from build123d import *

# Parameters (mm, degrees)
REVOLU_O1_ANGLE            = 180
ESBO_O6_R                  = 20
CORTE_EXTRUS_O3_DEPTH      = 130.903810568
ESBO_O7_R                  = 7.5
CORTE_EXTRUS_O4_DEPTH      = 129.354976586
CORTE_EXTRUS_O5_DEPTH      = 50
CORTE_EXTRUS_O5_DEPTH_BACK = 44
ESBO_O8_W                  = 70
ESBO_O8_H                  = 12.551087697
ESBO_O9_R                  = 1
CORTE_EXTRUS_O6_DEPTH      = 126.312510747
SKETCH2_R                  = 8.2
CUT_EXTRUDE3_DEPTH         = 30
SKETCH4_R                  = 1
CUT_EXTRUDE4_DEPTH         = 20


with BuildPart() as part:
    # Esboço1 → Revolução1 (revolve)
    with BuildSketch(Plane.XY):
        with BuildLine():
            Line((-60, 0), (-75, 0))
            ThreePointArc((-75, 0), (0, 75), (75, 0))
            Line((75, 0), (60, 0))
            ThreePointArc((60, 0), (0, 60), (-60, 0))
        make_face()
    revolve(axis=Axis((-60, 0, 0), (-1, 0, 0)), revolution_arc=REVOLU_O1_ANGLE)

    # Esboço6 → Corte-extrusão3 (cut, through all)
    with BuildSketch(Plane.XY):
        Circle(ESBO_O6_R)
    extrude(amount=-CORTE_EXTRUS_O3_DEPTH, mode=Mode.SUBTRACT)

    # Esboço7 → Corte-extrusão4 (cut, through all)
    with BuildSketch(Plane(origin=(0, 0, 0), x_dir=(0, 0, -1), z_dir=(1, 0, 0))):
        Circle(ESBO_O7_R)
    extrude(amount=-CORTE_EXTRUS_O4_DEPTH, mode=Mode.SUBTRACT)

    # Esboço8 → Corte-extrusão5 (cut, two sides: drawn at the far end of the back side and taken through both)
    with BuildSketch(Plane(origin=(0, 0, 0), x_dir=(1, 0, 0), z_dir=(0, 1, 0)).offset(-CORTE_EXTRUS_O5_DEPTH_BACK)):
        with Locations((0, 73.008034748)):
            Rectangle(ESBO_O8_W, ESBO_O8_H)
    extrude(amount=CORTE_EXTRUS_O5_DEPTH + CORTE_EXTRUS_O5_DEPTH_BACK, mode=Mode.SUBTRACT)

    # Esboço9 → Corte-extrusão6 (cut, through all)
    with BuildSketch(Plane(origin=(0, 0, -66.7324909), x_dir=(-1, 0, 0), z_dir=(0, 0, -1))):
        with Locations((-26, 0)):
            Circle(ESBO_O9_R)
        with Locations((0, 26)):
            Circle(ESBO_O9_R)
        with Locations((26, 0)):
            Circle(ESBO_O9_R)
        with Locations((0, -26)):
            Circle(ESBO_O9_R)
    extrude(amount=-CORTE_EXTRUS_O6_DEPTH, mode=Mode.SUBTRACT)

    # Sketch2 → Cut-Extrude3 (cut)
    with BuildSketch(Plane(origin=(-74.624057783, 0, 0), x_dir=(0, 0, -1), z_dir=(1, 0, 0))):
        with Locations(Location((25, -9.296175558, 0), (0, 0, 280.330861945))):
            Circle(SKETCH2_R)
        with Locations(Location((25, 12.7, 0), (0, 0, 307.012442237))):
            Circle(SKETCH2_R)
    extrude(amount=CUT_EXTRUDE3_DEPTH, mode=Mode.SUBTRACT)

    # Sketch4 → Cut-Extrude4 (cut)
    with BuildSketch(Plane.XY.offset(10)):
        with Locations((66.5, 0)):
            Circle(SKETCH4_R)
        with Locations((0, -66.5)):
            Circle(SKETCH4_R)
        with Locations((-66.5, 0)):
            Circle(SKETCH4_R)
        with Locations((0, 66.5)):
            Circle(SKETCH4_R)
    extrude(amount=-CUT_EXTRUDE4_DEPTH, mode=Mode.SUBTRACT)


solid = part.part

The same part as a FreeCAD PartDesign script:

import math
import FreeCAD as App
import Part
import Sketcher
from FreeCAD import Vector


def add_polygon(sketch, points):
    """Adds a closed chain of lines whose ends are joined by coincident constraints."""
    first, n = sketch.GeometryCount, len(points)
    for a, b in zip(points, points[1:] + points[:1]):
        sketch.addGeometry(Part.LineSegment(App.Vector(*a, 0), App.Vector(*b, 0)), False)
    for i in range(n):
        sketch.addConstraint(Sketcher.Constraint("Coincident", first + i, 2, first + (i + 1) % n, 1))

doc = App.newDocument("Part")
body = doc.addObject("PartDesign::Body", "Body")

sketch1 = doc.addObject("Sketcher::SketchObject", "Sketch")
body.addObject(sketch1)
sketch1.AttachmentSupport = (doc.XY_Plane, [""])
sketch1.MapMode = "FlatFace"
sketch1.addGeometry([
    Part.LineSegment(Vector(-75, 0, 0), Vector(-60, 0, 0)),
    Part.ArcOfCircle(Part.Circle(Vector(0, 0, 0), Vector(0, 0, 1), 60), math.radians(0), math.radians(180)),
    Part.LineSegment(Vector(60, 0, 0), Vector(75, 0, 0)),
    Part.ArcOfCircle(Part.Circle(Vector(0, 0, 0), Vector(0, 0, 1), 75), math.radians(0), math.radians(180)),
], False)
sketch1.addConstraint([
    Sketcher.Constraint("Coincident", 0, 2, 1, 2),
    Sketcher.Constraint("Coincident", 1, 1, 2, 1),
    Sketcher.Constraint("Coincident", 2, 2, 3, 1),
    Sketcher.Constraint("Coincident", 3, 2, 0, 1),
    Sketcher.Constraint("Horizontal", 0),
    Sketcher.Constraint("Horizontal", 2),
    Sketcher.Constraint("Coincident", 1, 3, -1, 1),
    Sketcher.Constraint("Coincident", 3, 3, -1, 1),
    Sketcher.Constraint("PointOnObject", 0, 2, -1),
    Sketcher.Constraint("PointOnObject", 1, 1, -1),
    Sketcher.Constraint("Radius", 1, 60.0),
    Sketcher.Constraint("Radius", 3, 75.0),
])
revolution = doc.addObject("PartDesign::Revolution", "Revolution")
body.addObject(revolution)
revolution.Profile = sketch1
revolution.ReferenceAxis = (sketch1, ["H_Axis"])
revolution.Angle = 180
revolution.Reversed = True

sketch2 = doc.addObject("Sketcher::SketchObject", "Sketch001")
body.addObject(sketch2)
sketch2.AttachmentSupport = (doc.XY_Plane, [""])
sketch2.MapMode = "FlatFace"
sketch2.addGeometry(Part.Circle(Vector(0, 0, 0), Vector(0, 0, 1), 20), False)
sketch2.addConstraint([
    Sketcher.Constraint("Coincident", 0, 3, -1, 1),
    Sketcher.Constraint("Diameter", 0, 40.0),
])
pocket1 = doc.addObject("PartDesign::Pocket", "Pocket")
body.addObject(pocket1)
pocket1.Profile = sketch2
pocket1.Type = "ThroughAll"

sketch3 = doc.addObject("Sketcher::SketchObject", "Sketch002")
body.addObject(sketch3)
sketch3.AttachmentSupport = (doc.YZ_Plane, [""])
sketch3.MapMode = "FlatFace"
sketch3.addGeometry(Part.Circle(Vector(0, 0, 0), Vector(0, 0, 1), 7.5), False)
sketch3.addConstraint([
    Sketcher.Constraint("Coincident", 0, 3, -1, 1),
    Sketcher.Constraint("Diameter", 0, 15.0),
])
pocket2 = doc.addObject("PartDesign::Pocket", "Pocket001")
body.addObject(pocket2)
pocket2.Profile = sketch3
pocket2.Type = "ThroughAll"

sketch4 = doc.addObject("Sketcher::SketchObject", "Sketch003")
body.addObject(sketch4)
sketch4.AttachmentSupport = (doc.XZ_Plane, [""])
sketch4.MapMode = "FlatFace"
add_polygon(sketch4, [(-35, -79.283579), (-35, -66.732491), (35, -66.732491), (35, -79.283579)])
sketch4.addConstraint([
    Sketcher.Constraint("Vertical", 0),
    Sketcher.Constraint("Horizontal", 1),
    Sketcher.Constraint("Vertical", 2),
    Sketcher.Constraint("Horizontal", 3),
    Sketcher.Constraint("DistanceX", 1, 1, 1, 2, 70.0),
    Sketcher.Constraint("DistanceX", 0, 2, -1, 1, 35.0),
    Sketcher.Constraint("DistanceY", 0, 1, 0, 2, 12.551088),
    Sketcher.Constraint("DistanceY", 0, 2, -1, 1, 66.732491),
])
pocket3 = doc.addObject("PartDesign::Pocket", "Pocket002")
body.addObject(pocket3)
pocket3.Profile = sketch4
pocket3.Type = "ThroughAll"
pocket3.Midplane = True

sketch5 = doc.addObject("Sketcher::SketchObject", "Sketch004")
body.addObject(sketch5)
sketch5.AttachmentSupport = (doc.XY_Plane, [""])
sketch5.MapMode = "FlatFace"
sketch5.AttachmentOffset = App.Placement(Vector(0, 0, -66.732491), App.Rotation())
sketch5.addGeometry([
    Part.Circle(Vector(26, 0, 0), Vector(0, 0, 1), 1),
    Part.Circle(Vector(0, 26, 0), Vector(0, 0, 1), 1),
    Part.Circle(Vector(-26, 0, 0), Vector(0, 0, 1), 1),
    Part.Circle(Vector(0, -26, 0), Vector(0, 0, 1), 1),
], False)
sketch5.addConstraint([
    Sketcher.Constraint("Equal", 0, 1),
    Sketcher.Constraint("Equal", 1, 2),
    Sketcher.Constraint("Equal", 2, 3),
    Sketcher.Constraint("Symmetric", 0, 3, 2, 3, -1, 1),
    Sketcher.Constraint("Symmetric", 1, 3, 3, 3, -1, 1),
    Sketcher.Constraint("PointOnObject", 0, 3, -1),
    Sketcher.Constraint("PointOnObject", 1, 3, -2),
    Sketcher.Constraint("Diameter", 0, 2.0),
    Sketcher.Constraint("DistanceX", -1, 1, 0, 3, 26.0),
    Sketcher.Constraint("DistanceY", -1, 1, 1, 3, 26.0),
])
pocket4 = doc.addObject("PartDesign::Pocket", "Pocket003")
body.addObject(pocket4)
pocket4.Profile = sketch5
pocket4.Type = "ThroughAll"
pocket4.Reversed = True

sketch6 = doc.addObject("Sketcher::SketchObject", "Sketch005")
body.addObject(sketch6)
sketch6.AttachmentSupport = (doc.YZ_Plane, [""])
sketch6.MapMode = "FlatFace"
sketch6.AttachmentOffset = App.Placement(Vector(0, 0, -74.624058), App.Rotation())
sketch6.addGeometry([
    Part.Circle(Vector(-9.296176, -25, 0), Vector(0, 0, 1), 8.2),
    Part.Circle(Vector(12.7, -25, 0), Vector(0, 0, 1), 8.2),
], False)
sketch6.addConstraint([
    Sketcher.Constraint("Equal", 0, 1),
    Sketcher.Constraint("Horizontal", 0, 3, 1, 3),
    Sketcher.Constraint("Diameter", 0, 16.4),
    Sketcher.Constraint("DistanceY", 0, 3, -1, 1, 25.0),
    Sketcher.Constraint("DistanceX", -1, 1, 1, 3, 12.7),
    Sketcher.Constraint("DistanceX", 0, 3, -1, 1, 9.296176),
])
pocket5 = doc.addObject("PartDesign::Pocket", "Pocket004")
body.addObject(pocket5)
pocket5.Profile = sketch6
pocket5.Length = 30
pocket5.Reversed = True

sketch7 = doc.addObject("Sketcher::SketchObject", "Sketch006")
body.addObject(sketch7)
sketch7.AttachmentSupport = (doc.XY_Plane, [""])
sketch7.MapMode = "FlatFace"
sketch7.AttachmentOffset = App.Placement(Vector(0, 0, 10), App.Rotation())
sketch7.addGeometry([
    Part.Circle(Vector(66.5, 0, 0), Vector(0, 0, 1), 1),
    Part.Circle(Vector(0, -66.5, 0), Vector(0, 0, 1), 1),
    Part.Circle(Vector(-66.5, 0, 0), Vector(0, 0, 1), 1),
    Part.Circle(Vector(0, 66.5, 0), Vector(0, 0, 1), 1),
], False)
sketch7.addConstraint([
    Sketcher.Constraint("Equal", 0, 1),
    Sketcher.Constraint("Equal", 1, 2),
    Sketcher.Constraint("Equal", 2, 3),
    Sketcher.Constraint("Symmetric", 0, 3, 2, 3, -1, 1),
    Sketcher.Constraint("Symmetric", 1, 3, 3, 3, -1, 1),
    Sketcher.Constraint("PointOnObject", 0, 3, -1),
    Sketcher.Constraint("PointOnObject", 1, 3, -2),
    Sketcher.Constraint("Diameter", 0, 2.0),
    Sketcher.Constraint("DistanceX", 2, 3, 0, 3, 133.0),
    Sketcher.Constraint("DistanceY", 1, 3, 3, 3, 133.0),
])
pocket6 = doc.addObject("PartDesign::Pocket", "Pocket005")
body.addObject(pocket6)
pocket6.Profile = sketch7
pocket6.Length = 20

doc.recompute()
